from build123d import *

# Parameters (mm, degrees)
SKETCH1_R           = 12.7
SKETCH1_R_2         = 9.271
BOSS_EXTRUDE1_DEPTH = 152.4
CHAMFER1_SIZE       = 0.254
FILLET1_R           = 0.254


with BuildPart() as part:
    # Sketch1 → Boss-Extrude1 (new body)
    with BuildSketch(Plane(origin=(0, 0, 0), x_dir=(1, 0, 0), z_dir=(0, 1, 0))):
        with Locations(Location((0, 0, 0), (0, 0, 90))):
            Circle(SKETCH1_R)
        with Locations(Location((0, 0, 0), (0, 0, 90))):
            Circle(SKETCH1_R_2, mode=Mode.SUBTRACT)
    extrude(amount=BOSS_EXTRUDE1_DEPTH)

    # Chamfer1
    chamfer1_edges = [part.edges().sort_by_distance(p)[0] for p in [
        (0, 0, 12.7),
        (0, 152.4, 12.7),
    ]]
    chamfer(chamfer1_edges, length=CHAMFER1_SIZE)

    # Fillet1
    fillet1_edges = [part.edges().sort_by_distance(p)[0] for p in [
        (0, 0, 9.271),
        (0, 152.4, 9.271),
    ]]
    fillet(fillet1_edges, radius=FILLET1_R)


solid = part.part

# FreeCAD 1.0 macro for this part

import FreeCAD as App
import Part
import Sketcher
Q = App.Units.Quantity


def edges_at(feature, points):
    """Names of the edges that pass closest to the given points."""
    edges = feature.Shape.Edges
    near = lambda p: min(range(len(edges)), key=lambda i: edges[i].distToShape(Part.Vertex(*p))[0])
    return sorted({f"Edge{near(p) + 1}" for p in points})

doc = App.newDocument("Part")
body = doc.addObject("PartDesign::Body", "Body")

# Sketch on XZ plane
sketch1 = body.newObject("Sketcher::SketchObject", "Sketch")
sketch1.AttachmentSupport = (doc.getObject("XZ_Plane"), [""])
sketch1.MapMode = "FlatFace"
sketch1.addGeometry([
    Part.Circle(App.Vector(0, 0, 0), App.Vector(0, 0, 1), 13),
    Part.Circle(App.Vector(0, 0, 0), App.Vector(0, 0, 1), 9),
], False)
sketch1.addConstraint([
    Sketcher.Constraint("Coincident", 0, 3, -1, 1),
    Sketcher.Constraint("Coincident", 1, 3, -1, 1),
    Sketcher.Constraint("Diameter", 0, Q("1 in")),
    Sketcher.Constraint("Diameter", 1, Q("0.73 in")),
])
pad1 = body.newObject("PartDesign::Pad", "Pad")
pad1.Profile = sketch1
pad1.Length = Q("6 in")
pad1.Reversed = True
doc.recompute()

chamfer = body.newObject("PartDesign::Chamfer", "Chamfer")
chamfer.Base = (pad1, edges_at(pad1, [(0, 0, 12.7), (0, 152.4, 12.7)]))
chamfer.Size = Q("0.01 in")
doc.recompute()

fillet = body.newObject("PartDesign::Fillet", "Fillet")
fillet.Base = (chamfer, edges_at(chamfer, [(0, 0, 9.271), (0, 152.4, 9.271)]))
fillet.Radius = Q("0.01 in")

doc.recompute()
